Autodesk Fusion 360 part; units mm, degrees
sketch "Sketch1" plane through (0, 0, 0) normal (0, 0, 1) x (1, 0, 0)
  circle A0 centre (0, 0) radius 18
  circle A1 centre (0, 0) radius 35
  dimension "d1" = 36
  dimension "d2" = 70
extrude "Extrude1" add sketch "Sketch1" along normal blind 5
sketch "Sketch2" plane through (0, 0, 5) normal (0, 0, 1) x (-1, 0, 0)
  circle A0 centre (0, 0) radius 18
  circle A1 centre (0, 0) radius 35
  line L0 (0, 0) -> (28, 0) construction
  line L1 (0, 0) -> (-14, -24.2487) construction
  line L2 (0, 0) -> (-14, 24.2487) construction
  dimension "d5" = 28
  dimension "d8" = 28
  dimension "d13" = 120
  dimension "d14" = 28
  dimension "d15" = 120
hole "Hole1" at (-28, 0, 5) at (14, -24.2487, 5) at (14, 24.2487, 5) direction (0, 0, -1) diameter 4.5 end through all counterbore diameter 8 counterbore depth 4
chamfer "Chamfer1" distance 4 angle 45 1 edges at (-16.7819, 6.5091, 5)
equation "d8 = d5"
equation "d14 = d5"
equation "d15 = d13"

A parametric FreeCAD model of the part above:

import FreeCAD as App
import Part
import Sketcher
from FreeCAD import Vector


def edges_at(feature, points):
    """Names of the edges that pass closest to the given points."""
    edges = feature.Shape.Edges
    near = lambda p: min(range(len(edges)), key=lambda i: edges[i].distToShape(Part.Vertex(*p))[0])
    return sorted({f"Edge{near(p) + 1}" for p in points})

doc = App.newDocument("Part")
body = doc.addObject("PartDesign::Body", "Body")

sketch1 = body.newObject("Sketcher::SketchObject", "Sketch")
sketch1.AttachmentSupport = (doc.getObject("XY_Plane"), [""])
sketch1.MapMode = "FlatFace"
sketch1.addGeometry([
    Part.Circle(Vector(0, 0, 0), Vector(0, 0, 1), 35),
    Part.Circle(Vector(0, 0, 0), Vector(0, 0, 1), 18),
], False)
sketch1.addConstraint([
    Sketcher.Constraint("Coincident", 0, 3, -1, 1),
    Sketcher.Constraint("Coincident", 1, 3, -1, 1),
    Sketcher.Constraint("Diameter", 0, 70.0),
    Sketcher.Constraint("Diameter", 1, 36.0),
])
pad1 = body.newObject("PartDesign::Pad", "Pad")
pad1.Profile = sketch1
pad1.Length = 5

sketch2 = body.newObject("Sketcher::SketchObject", "Sketch001")
sketch2.AttachmentSupport = (doc.getObject("XY_Plane"), [""])
sketch2.MapMode = "FlatFace"
sketch2.AttachmentOffset = App.Placement(Vector(0, 0, 5), App.Rotation())
sketch2.addGeometry([
    Part.Circle(Vector(-28, 0, 0), Vector(0, 0, 1), 2.2),
    Part.Circle(Vector(14, -24.2, 0), Vector(0, 0, 1), 2.2),
    Part.Circle(Vector(14, 24.2, 0), Vector(0, 0, 1), 2.2),
], False)
sketch2.addConstraint([
    Sketcher.Constraint("Equal", 0, 1),
    Sketcher.Constraint("Equal", 1, 2),
    Sketcher.Constraint("Symmetric", 1, 3, 2, 3, -1),
    Sketcher.Constraint("PointOnObject", 0, 3, -1),
    Sketcher.Constraint("Diameter", 0, 4.5),
    Sketcher.Constraint("DistanceX", 0, 3, -1, 1, 28.0),
    Sketcher.Constraint("DistanceX", -1, 1, 1, 3, 14.0),
    Sketcher.Constraint("DistanceY", 1, 3, -1, 1, 24.2487),
])
doc.recompute()
hole = body.newObject("PartDesign::Hole", "Hole")
hole.Profile = sketch2
hole.ThreadType = "None"
hole.Diameter = 4.5
hole.DepthType = "ThroughAll"
hole.HoleCutType = "Counterbore"
hole.HoleCutDiameter = 8
hole.HoleCutDepth = 4
doc.recompute()

chamfer = body.newObject("PartDesign::Chamfer", "Chamfer")
chamfer.Base = (hole, edges_at(hole, [(-16.782, 6.509, 5)]))
chamfer.Size = 4

doc.recompute()
